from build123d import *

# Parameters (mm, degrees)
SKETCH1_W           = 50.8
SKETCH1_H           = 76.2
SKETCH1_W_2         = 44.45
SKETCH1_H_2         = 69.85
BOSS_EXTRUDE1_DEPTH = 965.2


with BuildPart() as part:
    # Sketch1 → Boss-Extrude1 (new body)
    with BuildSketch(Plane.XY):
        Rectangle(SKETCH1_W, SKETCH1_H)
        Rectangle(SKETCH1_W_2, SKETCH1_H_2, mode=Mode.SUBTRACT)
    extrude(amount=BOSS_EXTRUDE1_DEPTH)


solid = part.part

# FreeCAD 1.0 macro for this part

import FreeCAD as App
import Part
import Sketcher

V = App.Vector
Q = App.Units.Quantity

doc = App.newDocument("Part")
body = doc.addObject("PartDesign::Body", "Body")

# Sketch on XY plane
sketch1 = doc.addObject("Sketcher::SketchObject", "Sketch")
body.addObject(sketch1)
sketch1.AttachmentSupport = (doc.XY_Plane, [""])
sketch1.MapMode = "FlatFace"
sketch1.addGeometry(Part.LineSegment(V(-25, 38, 0), V(-25, -38, 0)), False)
sketch1.addGeometry(Part.LineSegment(V(-25, -38, 0), V(25, -38, 0)), False)
sketch1.addGeometry(Part.LineSegment(V(25, -38, 0), V(25, 38, 0)), False)
sketch1.addGeometry(Part.LineSegment(V(25, 38, 0), V(-25, 38, 0)), False)
sketch1.addGeometry(Part.LineSegment(V(22, -35, 0), V(-22, -35, 0)), False)
sketch1.addGeometry(Part.LineSegment(V(-22, -35, 0), V(-22, 35, 0)), False)
sketch1.addGeometry(Part.LineSegment(V(-22, 35, 0), V(22, 35, 0)), False)
sketch1.addGeometry(Part.LineSegment(V(22, 35, 0), V(22, -35, 0)), False)
sketch1.addConstraint(Sketcher.Constraint("Coincident", 0, 2, 1, 1))
sketch1.addConstraint(Sketcher.Constraint("Coincident", 1, 2, 2, 1))
sketch1.addConstraint(Sketcher.Constraint("Coincident", 2, 2, 3, 1))
sketch1.addConstraint(Sketcher.Constraint("Coincident", 3, 2, 0, 1))
sketch1.addConstraint(Sketcher.Constraint("Coincident", 4, 2, 5, 1))
sketch1.addConstraint(Sketcher.Constraint("Coincident", 5, 2, 6, 1))
sketch1.addConstraint(Sketcher.Constraint("Coincident", 6, 2, 7, 1))
sketch1.addConstraint(Sketcher.Constraint("Coincident", 7, 2, 4, 1))
sketch1.addConstraint(Sketcher.Constraint("Vertical", 0))
sketch1.addConstraint(Sketcher.Constraint("Horizontal", 1))
sketch1.addConstraint(Sketcher.Constraint("Vertical", 2))
sketch1.addConstraint(Sketcher.Constraint("Horizontal", 3))
sketch1.addConstraint(Sketcher.Constraint("Horizontal", 4))
sketch1.addConstraint(Sketcher.Constraint("Vertical", 5))
sketch1.addConstraint(Sketcher.Constraint("Horizontal", 6))
sketch1.addConstraint(Sketcher.Constraint("Vertical", 7))
sketch1.addConstraint(Sketcher.Constraint("Symmetric", 0, 2, 2, 2, -1, 1))
sketch1.addConstraint(Sketcher.Constraint("Symmetric", 4, 2, 6, 2, -1, 1))
sketch1.addConstraint(Sketcher.Constraint("DistanceX", 1, 1, 1, 2, Q("2 in")))
sketch1.addConstraint(Sketcher.Constraint("DistanceY", 0, 2, 0, 1, Q("3 in")))
sketch1.addConstraint(Sketcher.Constraint("DistanceX", 4, 2, 4, 1, Q("1.75 in")))
sketch1.addConstraint(Sketcher.Constraint("DistanceY", 5, 1, 5, 2, Q("2.75 in")))
pad1 = doc.addObject("PartDesign::Pad", "Pad")
body.addObject(pad1)
pad1.Profile = sketch1
pad1.Length = Q("38 in")

doc.recompute()
